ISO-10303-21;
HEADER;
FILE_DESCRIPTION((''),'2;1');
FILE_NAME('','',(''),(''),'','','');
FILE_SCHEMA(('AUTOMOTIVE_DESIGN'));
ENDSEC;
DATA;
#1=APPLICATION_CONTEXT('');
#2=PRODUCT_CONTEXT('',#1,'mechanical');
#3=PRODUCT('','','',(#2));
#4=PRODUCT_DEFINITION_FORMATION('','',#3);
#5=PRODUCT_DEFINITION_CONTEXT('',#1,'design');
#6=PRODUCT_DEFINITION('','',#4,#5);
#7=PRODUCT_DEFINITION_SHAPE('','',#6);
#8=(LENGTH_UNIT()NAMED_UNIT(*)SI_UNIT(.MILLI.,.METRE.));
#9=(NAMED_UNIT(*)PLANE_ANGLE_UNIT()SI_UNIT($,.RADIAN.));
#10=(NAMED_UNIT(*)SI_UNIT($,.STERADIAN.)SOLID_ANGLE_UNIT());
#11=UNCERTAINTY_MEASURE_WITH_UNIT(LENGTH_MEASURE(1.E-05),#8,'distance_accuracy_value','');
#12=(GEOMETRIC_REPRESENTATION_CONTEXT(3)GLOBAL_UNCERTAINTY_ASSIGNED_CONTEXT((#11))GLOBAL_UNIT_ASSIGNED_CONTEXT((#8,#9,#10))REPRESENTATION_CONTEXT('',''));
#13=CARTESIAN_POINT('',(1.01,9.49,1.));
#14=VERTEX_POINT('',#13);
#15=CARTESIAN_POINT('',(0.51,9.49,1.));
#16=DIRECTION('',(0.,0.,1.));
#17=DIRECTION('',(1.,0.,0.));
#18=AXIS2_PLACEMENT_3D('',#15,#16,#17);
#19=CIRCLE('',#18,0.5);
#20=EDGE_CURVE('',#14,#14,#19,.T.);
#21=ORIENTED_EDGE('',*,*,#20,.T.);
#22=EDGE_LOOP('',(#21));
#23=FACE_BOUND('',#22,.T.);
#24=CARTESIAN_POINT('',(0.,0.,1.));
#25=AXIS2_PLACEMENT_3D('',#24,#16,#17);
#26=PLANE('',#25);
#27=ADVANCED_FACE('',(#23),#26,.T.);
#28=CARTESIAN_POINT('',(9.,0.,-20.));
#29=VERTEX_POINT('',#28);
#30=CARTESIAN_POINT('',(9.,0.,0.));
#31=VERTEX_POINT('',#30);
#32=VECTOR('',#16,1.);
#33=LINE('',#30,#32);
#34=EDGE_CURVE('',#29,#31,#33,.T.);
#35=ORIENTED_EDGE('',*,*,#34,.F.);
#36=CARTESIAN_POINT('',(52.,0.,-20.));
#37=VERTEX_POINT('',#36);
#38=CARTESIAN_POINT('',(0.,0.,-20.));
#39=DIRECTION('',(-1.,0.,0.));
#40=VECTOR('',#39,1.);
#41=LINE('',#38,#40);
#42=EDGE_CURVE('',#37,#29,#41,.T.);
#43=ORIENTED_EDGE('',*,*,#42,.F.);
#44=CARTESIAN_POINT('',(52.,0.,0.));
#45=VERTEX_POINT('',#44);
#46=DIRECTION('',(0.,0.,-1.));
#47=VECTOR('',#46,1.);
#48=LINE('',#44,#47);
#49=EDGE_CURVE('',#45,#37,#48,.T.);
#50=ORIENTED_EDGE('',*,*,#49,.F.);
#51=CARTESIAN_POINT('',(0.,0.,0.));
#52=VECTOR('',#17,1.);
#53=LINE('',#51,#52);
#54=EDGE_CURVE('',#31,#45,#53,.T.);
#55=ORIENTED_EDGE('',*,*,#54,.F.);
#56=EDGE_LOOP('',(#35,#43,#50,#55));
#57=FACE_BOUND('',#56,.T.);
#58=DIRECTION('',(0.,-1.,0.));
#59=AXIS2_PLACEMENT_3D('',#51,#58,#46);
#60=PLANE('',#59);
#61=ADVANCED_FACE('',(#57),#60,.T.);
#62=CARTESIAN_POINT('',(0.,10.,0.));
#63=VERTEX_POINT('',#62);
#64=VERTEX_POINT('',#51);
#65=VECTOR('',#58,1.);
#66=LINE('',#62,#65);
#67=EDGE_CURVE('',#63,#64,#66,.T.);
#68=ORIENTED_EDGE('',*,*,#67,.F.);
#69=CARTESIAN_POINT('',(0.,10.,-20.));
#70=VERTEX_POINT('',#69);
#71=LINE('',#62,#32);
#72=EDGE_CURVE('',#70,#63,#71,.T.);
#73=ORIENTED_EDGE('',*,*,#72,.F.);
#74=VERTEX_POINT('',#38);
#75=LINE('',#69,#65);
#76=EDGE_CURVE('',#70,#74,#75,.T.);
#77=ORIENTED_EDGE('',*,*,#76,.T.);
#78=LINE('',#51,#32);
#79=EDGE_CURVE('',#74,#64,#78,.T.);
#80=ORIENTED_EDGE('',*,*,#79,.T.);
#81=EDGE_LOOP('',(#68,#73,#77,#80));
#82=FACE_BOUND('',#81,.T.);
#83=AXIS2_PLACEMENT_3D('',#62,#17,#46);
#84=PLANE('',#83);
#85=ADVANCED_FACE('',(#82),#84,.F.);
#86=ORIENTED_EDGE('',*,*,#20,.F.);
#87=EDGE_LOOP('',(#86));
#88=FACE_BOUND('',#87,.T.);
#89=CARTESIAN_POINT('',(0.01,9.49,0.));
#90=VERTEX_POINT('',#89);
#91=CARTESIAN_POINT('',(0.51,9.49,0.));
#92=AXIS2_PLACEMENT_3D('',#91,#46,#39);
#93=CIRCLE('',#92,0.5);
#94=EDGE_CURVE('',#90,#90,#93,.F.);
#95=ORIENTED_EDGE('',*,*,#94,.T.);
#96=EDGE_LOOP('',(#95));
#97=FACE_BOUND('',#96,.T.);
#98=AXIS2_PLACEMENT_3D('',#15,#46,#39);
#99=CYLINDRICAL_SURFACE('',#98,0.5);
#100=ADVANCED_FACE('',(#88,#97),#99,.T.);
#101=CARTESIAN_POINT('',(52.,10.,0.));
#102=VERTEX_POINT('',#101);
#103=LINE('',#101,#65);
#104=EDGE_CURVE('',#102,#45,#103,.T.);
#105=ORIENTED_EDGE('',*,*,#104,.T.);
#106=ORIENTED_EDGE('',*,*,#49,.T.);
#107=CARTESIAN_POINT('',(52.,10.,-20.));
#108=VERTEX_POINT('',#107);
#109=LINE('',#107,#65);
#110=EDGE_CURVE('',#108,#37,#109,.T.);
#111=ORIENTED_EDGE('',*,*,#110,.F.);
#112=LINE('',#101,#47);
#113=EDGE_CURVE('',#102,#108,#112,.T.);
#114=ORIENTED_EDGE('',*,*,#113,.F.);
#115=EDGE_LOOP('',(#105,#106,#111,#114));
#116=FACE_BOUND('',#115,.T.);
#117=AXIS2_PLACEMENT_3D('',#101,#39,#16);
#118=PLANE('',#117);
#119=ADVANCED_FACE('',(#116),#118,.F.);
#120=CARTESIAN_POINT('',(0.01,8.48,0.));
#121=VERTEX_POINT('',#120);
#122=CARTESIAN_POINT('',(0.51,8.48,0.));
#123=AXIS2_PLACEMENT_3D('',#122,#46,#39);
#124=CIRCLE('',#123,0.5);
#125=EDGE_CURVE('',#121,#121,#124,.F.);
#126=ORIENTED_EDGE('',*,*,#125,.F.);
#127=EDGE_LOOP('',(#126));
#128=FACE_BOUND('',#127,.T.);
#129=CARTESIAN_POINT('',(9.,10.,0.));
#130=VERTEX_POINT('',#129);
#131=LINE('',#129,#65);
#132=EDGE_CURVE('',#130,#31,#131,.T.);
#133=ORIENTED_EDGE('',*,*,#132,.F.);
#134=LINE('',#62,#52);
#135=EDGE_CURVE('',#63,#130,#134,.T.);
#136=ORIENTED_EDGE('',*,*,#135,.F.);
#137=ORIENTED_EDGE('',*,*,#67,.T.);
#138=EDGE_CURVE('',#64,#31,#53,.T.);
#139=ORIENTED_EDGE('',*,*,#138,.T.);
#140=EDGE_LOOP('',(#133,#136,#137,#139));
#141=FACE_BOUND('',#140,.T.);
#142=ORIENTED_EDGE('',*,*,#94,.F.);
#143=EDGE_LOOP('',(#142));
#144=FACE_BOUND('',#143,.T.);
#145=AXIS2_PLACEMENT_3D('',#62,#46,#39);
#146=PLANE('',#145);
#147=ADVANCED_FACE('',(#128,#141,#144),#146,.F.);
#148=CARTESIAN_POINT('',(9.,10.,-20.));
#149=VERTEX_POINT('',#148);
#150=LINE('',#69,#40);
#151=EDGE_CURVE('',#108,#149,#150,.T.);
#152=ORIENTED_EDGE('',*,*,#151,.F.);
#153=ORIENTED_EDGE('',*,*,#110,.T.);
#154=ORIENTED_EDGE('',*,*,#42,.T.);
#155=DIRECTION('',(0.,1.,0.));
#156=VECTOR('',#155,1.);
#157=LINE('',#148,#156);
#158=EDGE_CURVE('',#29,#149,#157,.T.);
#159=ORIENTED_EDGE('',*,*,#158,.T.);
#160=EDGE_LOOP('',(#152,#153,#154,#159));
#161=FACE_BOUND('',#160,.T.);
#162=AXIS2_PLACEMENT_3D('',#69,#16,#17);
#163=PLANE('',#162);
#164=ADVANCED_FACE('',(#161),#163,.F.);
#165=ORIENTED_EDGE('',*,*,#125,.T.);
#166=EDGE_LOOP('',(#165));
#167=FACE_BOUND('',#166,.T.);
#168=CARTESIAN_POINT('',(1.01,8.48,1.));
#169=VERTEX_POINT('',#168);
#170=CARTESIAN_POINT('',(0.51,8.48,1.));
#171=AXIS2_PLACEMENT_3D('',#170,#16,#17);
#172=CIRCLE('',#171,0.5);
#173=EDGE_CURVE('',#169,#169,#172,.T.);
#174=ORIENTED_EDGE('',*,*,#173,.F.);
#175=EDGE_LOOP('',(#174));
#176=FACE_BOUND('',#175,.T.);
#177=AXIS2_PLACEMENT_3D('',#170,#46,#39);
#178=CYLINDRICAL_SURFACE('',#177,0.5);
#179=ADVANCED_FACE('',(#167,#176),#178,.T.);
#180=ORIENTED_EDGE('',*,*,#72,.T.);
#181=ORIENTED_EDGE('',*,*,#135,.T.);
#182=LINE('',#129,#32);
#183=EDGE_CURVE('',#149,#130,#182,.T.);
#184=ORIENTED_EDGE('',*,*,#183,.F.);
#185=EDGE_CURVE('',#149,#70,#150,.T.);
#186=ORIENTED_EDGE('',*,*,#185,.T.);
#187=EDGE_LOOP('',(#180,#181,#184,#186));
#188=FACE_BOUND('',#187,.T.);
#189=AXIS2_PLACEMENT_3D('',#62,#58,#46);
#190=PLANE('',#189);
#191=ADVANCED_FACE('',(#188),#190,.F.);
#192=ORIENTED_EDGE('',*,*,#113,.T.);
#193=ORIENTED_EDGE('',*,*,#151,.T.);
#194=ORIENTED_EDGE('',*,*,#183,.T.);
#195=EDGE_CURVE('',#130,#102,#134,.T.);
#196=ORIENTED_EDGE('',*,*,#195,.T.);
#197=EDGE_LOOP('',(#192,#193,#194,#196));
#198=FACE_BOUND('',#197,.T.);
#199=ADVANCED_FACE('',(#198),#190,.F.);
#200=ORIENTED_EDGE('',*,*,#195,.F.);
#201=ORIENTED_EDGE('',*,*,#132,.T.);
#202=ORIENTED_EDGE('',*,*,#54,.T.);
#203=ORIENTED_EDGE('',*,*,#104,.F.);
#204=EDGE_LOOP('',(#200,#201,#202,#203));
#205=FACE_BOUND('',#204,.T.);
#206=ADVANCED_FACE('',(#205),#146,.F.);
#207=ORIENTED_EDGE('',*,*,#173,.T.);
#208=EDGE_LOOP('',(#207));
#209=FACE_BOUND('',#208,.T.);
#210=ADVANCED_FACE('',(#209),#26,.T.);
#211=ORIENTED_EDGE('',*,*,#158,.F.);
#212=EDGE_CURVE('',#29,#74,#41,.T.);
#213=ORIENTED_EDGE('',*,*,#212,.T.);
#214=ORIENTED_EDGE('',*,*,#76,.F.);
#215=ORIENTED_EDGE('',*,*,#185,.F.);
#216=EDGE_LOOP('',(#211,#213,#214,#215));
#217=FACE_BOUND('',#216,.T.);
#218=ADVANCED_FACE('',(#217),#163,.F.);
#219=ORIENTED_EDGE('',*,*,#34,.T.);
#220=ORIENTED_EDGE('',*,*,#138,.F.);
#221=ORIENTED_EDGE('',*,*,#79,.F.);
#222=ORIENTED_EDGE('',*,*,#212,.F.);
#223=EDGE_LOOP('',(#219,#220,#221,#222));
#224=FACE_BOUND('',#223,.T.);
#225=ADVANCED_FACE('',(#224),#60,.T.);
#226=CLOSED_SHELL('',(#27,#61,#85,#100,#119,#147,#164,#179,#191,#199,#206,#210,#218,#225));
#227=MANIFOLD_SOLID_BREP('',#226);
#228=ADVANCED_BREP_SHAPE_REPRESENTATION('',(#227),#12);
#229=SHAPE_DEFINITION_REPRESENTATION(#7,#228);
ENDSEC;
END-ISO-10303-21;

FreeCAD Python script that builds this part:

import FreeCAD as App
import Part
import Sketcher

V = App.Vector
Q = App.Units.Quantity

doc = App.newDocument("Part")
body = doc.addObject("PartDesign::Body", "Body")

sketch1 = body.newObject("Sketcher::SketchObject", "Sketch")
sketch1.AttachmentSupport = (doc.getObject("XZ_Plane"), [""])
sketch1.MapMode = "FlatFace"
sketch1.addGeometry([
    Part.LineSegment(V(0, -20, 0), V(0, 0, 0)),
    Part.LineSegment(V(0, 0, 0), V(52, 0, 0)),
    Part.LineSegment(V(52, 0, 0), V(52, -20, 0)),
    Part.LineSegment(V(52, -20, 0), V(0, -20, 0)),
], False)
sketch1.addConstraint([
    Sketcher.Constraint("Coincident", 0, 2, 1, 1),
    Sketcher.Constraint("Coincident", 1, 2, 2, 1),
    Sketcher.Constraint("Coincident", 2, 2, 3, 1),
    Sketcher.Constraint("Coincident", 3, 2, 0, 1),
    Sketcher.Constraint("Vertical", 0),
    Sketcher.Constraint("Horizontal", 1),
    Sketcher.Constraint("Vertical", 2),
    Sketcher.Constraint("Horizontal", 3),
    Sketcher.Constraint("Coincident", 0, 2, -1, 1),
    Sketcher.Constraint("DistanceX", 1, 1, 1, 2, Q("52 mm")),
    Sketcher.Constraint("DistanceY", 0, 1, 0, 2, Q("20 mm")),
])
pad1 = body.newObject("PartDesign::Pad", "Pad")
pad1.Profile = sketch1
pad1.Length = 10
pad1.Reversed = True

sketch2 = body.newObject("Sketcher::SketchObject", "Sketch001")
sketch2.AttachmentSupport = (doc.getObject("XY_Plane"), [""])
sketch2.MapMode = "FlatFace"
sketch2.addGeometry([
    Part.Circle(V(0.51, 9.49, 0), V(0, 0, 1), 0.5),
    Part.Circle(V(0.51, 8.48, 0), V(0, 0, 1), 0.5),
], False)
sketch2.addConstraint([
    Sketcher.Constraint("Equal", 0, 1),
    Sketcher.Constraint("Vertical", 0, 3, 1, 3),
    Sketcher.Constraint("Diameter", 0, Q("1 mm")),
    Sketcher.Constraint("DistanceX", -1, 1, 0, 3, Q("0.51 mm")),
    Sketcher.Constraint("DistanceY", -1, 1, 0, 3, Q("9.49 mm")),
    Sketcher.Constraint("DistanceY", -1, 1, 1, 3, Q("8.48 mm")),
])
pad2 = body.newObject("PartDesign::Pad", "Pad001")
pad2.Profile = sketch2
pad2.Length = 1

doc.recompute()
